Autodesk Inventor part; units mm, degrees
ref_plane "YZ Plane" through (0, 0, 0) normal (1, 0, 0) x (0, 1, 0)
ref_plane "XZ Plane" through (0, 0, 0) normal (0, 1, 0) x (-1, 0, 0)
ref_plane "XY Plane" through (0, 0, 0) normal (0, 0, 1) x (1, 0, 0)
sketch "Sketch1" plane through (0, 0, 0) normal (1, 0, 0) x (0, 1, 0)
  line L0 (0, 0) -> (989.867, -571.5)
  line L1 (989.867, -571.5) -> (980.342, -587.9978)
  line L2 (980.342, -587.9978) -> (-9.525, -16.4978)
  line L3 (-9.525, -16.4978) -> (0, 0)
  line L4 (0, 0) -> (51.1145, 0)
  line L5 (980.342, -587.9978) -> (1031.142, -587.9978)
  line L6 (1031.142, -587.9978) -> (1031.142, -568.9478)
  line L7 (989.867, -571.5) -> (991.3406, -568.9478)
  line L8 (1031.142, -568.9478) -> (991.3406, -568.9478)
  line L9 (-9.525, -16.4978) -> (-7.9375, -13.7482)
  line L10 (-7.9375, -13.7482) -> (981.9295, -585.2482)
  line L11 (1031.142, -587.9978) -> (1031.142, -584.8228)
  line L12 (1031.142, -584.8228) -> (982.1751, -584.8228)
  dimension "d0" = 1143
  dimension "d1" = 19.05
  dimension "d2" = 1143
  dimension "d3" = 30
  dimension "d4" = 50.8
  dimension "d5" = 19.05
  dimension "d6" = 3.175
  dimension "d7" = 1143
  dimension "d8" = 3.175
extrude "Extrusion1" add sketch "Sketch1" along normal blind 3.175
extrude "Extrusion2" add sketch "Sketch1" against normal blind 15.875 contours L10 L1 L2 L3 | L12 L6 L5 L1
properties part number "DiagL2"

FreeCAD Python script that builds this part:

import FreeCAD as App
import Part
import Sketcher
from FreeCAD import Vector
Q = App.Units.Quantity

doc = App.newDocument("Part")
body = doc.addObject("PartDesign::Body", "Body")

# Sketch on YZ plane
sketch1 = body.newObject("Sketcher::SketchObject", "Sketch")
sketch1.AttachmentSupport = (doc.getObject("YZ_Plane"), [""])
sketch1.MapMode = "FlatFace"
sketch1.addGeometry(Part.LineSegment(Vector(989.867, -571.5, 0), Vector(0, 0, 0)), False)
sketch1.addGeometry(Part.LineSegment(Vector(0, 0, 0), Vector(-9.525, -16.4978, 0)), False)
sketch1.addGeometry(Part.LineSegment(Vector(-9.525, -16.4978, 0), Vector(980.342, -587.9978, 0)), False)
sketch1.addGeometry(Part.LineSegment(Vector(980.342, -587.9978, 0), Vector(1031.142, -587.9978, 0)), False)
sketch1.addGeometry(Part.LineSegment(Vector(1031.142, -587.9978, 0), Vector(1031.142, -568.9478, 0)), False)
sketch1.addGeometry(Part.LineSegment(Vector(1031.142, -568.9478, 0), Vector(991.3406, -568.9478, 0)), False)
sketch1.addGeometry(Part.LineSegment(Vector(991.3406, -568.9478, 0), Vector(989.867, -571.5, 0)), False)
sketch1.addConstraint(Sketcher.Constraint("Coincident", 0, 2, 1, 1))
sketch1.addConstraint(Sketcher.Constraint("Coincident", 1, 2, 2, 1))
sketch1.addConstraint(Sketcher.Constraint("Coincident", 2, 2, 3, 1))
sketch1.addConstraint(Sketcher.Constraint("Coincident", 3, 2, 4, 1))
sketch1.addConstraint(Sketcher.Constraint("Coincident", 4, 2, 5, 1))
sketch1.addConstraint(Sketcher.Constraint("Coincident", 5, 2, 6, 1))
sketch1.addConstraint(Sketcher.Constraint("Coincident", 6, 2, 0, 1))
sketch1.addConstraint(Sketcher.Constraint("Horizontal", 3))
sketch1.addConstraint(Sketcher.Constraint("Vertical", 4))
sketch1.addConstraint(Sketcher.Constraint("Horizontal", 5))
sketch1.addConstraint(Sketcher.Constraint("Coincident", 0, 2, -1, 1))
sketch1.addConstraint(Sketcher.Constraint("Perpendicular", 0, 1))
sketch1.addConstraint(Sketcher.Constraint("Perpendicular", 1, 2))
sketch1.addConstraint(Sketcher.Constraint("Perpendicular", 2, 6))
sketch1.addConstraint(Sketcher.Constraint("Equal", 0, 2))
sketch1.addConstraint(Sketcher.Constraint("DistanceX", 3, 1, 3, 2, Q("2 in")))
sketch1.addConstraint(Sketcher.Constraint("Distance", 0, Q("45 in")))
sketch1.addConstraint(Sketcher.Constraint("Angle", 2, Q("-30 deg")))
sketch1.addConstraint(Sketcher.Constraint("DistanceY", 4, 1, 4, 2, Q("0.75 in")))
sketch1.addConstraint(Sketcher.Constraint("Distance", 1, Q("0.75 in")))
pad1 = body.newObject("PartDesign::Pad", "Pad")
pad1.Profile = sketch1
pad1.Length = Q("0.125 in")

# Sketch on YZ plane
sketch2 = body.newObject("Sketcher::SketchObject", "Sketch001")
sketch2.AttachmentSupport = (doc.getObject("YZ_Plane"), [""])
sketch2.MapMode = "FlatFace"
sketch2.addGeometry(Part.LineSegment(Vector(981.9295, -585.2482, 0), Vector(-7.9375, -13.7482, 0)), False)
sketch2.addGeometry(Part.LineSegment(Vector(-7.937514, -13.748192, 0), Vector(-9.525, -16.4978, 0)), False)
sketch2.addGeometry(Part.LineSegment(Vector(-9.525, -16.4978, 0), Vector(980.342, -587.9978, 0)), False)
sketch2.addGeometry(Part.LineSegment(Vector(980.342, -587.9978, 0), Vector(1031.142, -587.9978, 0)), False)
sketch2.addGeometry(Part.LineSegment(Vector(1031.142, -587.9978, 0), Vector(1031.142, -584.8228, 0)), False)
sketch2.addGeometry(Part.LineSegment(Vector(1031.142, -584.8228, 0), Vector(982.1751, -584.8228, 0)), False)
sketch2.addGeometry(Part.LineSegment(Vector(982.175089, -584.822794, 0), Vector(981.929486, -585.248192, 0)), False)
sketch2.addConstraint(Sketcher.Constraint("Coincident", 0, 2, 1, 1))
sketch2.addConstraint(Sketcher.Constraint("Coincident", 1, 2, 2, 1))
sketch2.addConstraint(Sketcher.Constraint("Coincident", 2, 2, 3, 1))
sketch2.addConstraint(Sketcher.Constraint("Coincident", 3, 2, 4, 1))
sketch2.addConstraint(Sketcher.Constraint("Coincident", 4, 2, 5, 1))
sketch2.addConstraint(Sketcher.Constraint("Coincident", 5, 2, 6, 1))
sketch2.addConstraint(Sketcher.Constraint("Coincident", 6, 2, 0, 1))
sketch2.addConstraint(Sketcher.Constraint("Horizontal", 3))
sketch2.addConstraint(Sketcher.Constraint("Vertical", 4))
sketch2.addConstraint(Sketcher.Constraint("Horizontal", 5))
sketch2.addConstraint(Sketcher.Constraint("Perpendicular", 0, 1))
sketch2.addConstraint(Sketcher.Constraint("Perpendicular", 1, 2))
sketch2.addConstraint(Sketcher.Constraint("Perpendicular", 2, 6))
sketch2.addConstraint(Sketcher.Constraint("Equal", 0, 2))
sketch2.addConstraint(Sketcher.Constraint("DistanceX", 3, 1, 3, 2, Q("2 in")))
sketch2.addConstraint(Sketcher.Constraint("Distance", 0, Q("45 in")))
sketch2.addConstraint(Sketcher.Constraint("Angle", 2, Q("-30 deg")))
sketch2.addConstraint(Sketcher.Constraint("DistanceY", 4, 1, 4, 2, Q("0.125 in")))
sketch2.addConstraint(Sketcher.Constraint("Distance", 1, Q("0.125 in")))
sketch2.addConstraint(Sketcher.Constraint("DistanceX", 0, 2, -1, 1, Q("0.3125 in")))
sketch2.addConstraint(Sketcher.Constraint("DistanceY", 0, 2, -1, 1, Q("13.7482 mm")))
pad2 = body.newObject("PartDesign::Pad", "Pad001")
pad2.Profile = sketch2
pad2.Length = Q("0.625 in")
pad2.Reversed = True

doc.recompute()
